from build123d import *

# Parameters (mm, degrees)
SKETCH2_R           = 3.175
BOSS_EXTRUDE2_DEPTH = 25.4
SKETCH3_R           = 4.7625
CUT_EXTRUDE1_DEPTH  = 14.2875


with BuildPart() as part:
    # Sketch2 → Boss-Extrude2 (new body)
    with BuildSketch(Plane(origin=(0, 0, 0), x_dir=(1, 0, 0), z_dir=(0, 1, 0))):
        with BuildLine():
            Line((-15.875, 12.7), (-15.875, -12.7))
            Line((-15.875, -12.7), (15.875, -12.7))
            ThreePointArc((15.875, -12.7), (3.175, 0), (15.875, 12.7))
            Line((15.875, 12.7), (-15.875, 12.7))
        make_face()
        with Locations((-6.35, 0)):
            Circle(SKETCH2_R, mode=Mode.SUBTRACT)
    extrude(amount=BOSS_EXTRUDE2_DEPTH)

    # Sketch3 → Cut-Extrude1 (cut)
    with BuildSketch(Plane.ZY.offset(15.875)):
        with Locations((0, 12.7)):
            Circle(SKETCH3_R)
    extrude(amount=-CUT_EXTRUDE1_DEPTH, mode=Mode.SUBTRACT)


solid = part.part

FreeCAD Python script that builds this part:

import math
import FreeCAD as App
import Part
import Sketcher
Q = App.Units.Quantity

doc = App.newDocument("Part")
params = doc.addObject("Spreadsheet::Sheet", "Params")
for row, (alias, value) in enumerate([
    ("sketch1_radius", "0.5 in"),
    ("sketch1_diameter", "0.25 in"),
    ("sketch1_width", "1.25 in"),
    ("pad1_length", "1 in"),
    ("sketch2_diameter", "0.375 in"),
    ("pocket1_length", "0.5625 in"),
], start=1):
    params.set(f"A{row}", alias)
    params.set(f"B{row}", "=" + value)
    params.setAlias(f"B{row}", alias)

body = doc.addObject("PartDesign::Body", "Body")

# Sketch on XZ plane
sketch1 = body.newObject("Sketcher::SketchObject", "Sketch")
sketch1.AttachmentSupport = (doc.getObject("XZ_Plane"), [""])
sketch1.MapMode = "FlatFace"
sketch1.addGeometry(Part.LineSegment(App.Vector(-15.9, -12.7, 0), App.Vector(-15.9, 12.7, 0)), False)
sketch1.addGeometry(Part.LineSegment(App.Vector(-15.9, 12.7, 0), App.Vector(15.9, 12.7, 0)), False)
sketch1.addGeometry(Part.ArcOfCircle(Part.Circle(App.Vector(15.9, 0, 0), App.Vector(0, 0, 1), 12.7), math.radians(90), math.radians(270)), False)
sketch1.addGeometry(Part.LineSegment(App.Vector(15.9, -12.7, 0), App.Vector(-15.9, -12.7, 0)), False)
sketch1.addGeometry(Part.Circle(App.Vector(-6.3, 0, 0), App.Vector(0, 0, 1), 3.2), False)
sketch1.addConstraint(Sketcher.Constraint("Coincident", 0, 2, 1, 1))
sketch1.addConstraint(Sketcher.Constraint("Tangent", 1, 2, 2, 1))
sketch1.addConstraint(Sketcher.Constraint("Tangent", 2, 2, 3, 1))
sketch1.addConstraint(Sketcher.Constraint("Coincident", 3, 2, 0, 1))
sketch1.addConstraint(Sketcher.Constraint("Vertical", 0))
sketch1.addConstraint(Sketcher.Constraint("Horizontal", 1))
sketch1.addConstraint(Sketcher.Constraint("Horizontal", 3))
sketch1.addConstraint(Sketcher.Constraint("Symmetric", 0, 2, 2, 2, -1, 1))
sketch1.addConstraint(Sketcher.Constraint("PointOnObject", 4, 3, -1))
sketch1.addConstraint(Sketcher.Constraint("Radius", 2, Q("0.5 in")))
sketch1.addConstraint(Sketcher.Constraint("Diameter", 4, Q("0.25 in")))
sketch1.addConstraint(Sketcher.Constraint("DistanceX", 1, 1, 1, 2, Q("1.25 in")))
sketch1.addConstraint(Sketcher.Constraint("DistanceX", 4, 3, -1, 1, Q("0.25 in")))
sketch1.setExpression("Constraints[9]", "Params.sketch1_radius")
sketch1.setExpression("Constraints[10]", "Params.sketch1_diameter")
sketch1.setExpression("Constraints[11]", "Params.sketch1_width")
pad1 = body.newObject("PartDesign::Pad", "Pad")
pad1.Profile = sketch1
pad1.setExpression("Length", "Params.pad1_length")
pad1.Reversed = True

# Sketch on YZ plane
sketch2 = body.newObject("Sketcher::SketchObject", "Sketch001")
sketch2.AttachmentSupport = (doc.getObject("YZ_Plane"), [""])
sketch2.MapMode = "FlatFace"
sketch2.AttachmentOffset = App.Placement(App.Vector(0, 0, -0.625 * 25.4), App.Rotation())
sketch2.addGeometry(Part.Circle(App.Vector(12.7, 0, 0), App.Vector(0, 0, 1), 4.8), False)
sketch2.addConstraint(Sketcher.Constraint("PointOnObject", 0, 3, -1))
sketch2.addConstraint(Sketcher.Constraint("Diameter", 0, Q("0.375 in")))
sketch2.addConstraint(Sketcher.Constraint("DistanceX", -1, 1, 0, 3, Q("0.5 in")))
sketch2.setExpression("Constraints[1]", "Params.sketch2_diameter")
pocket1 = body.newObject("PartDesign::Pocket", "Pocket")
pocket1.Profile = sketch2
pocket1.setExpression("Length", "Params.pocket1_length")
pocket1.Reversed = True

doc.recompute()
